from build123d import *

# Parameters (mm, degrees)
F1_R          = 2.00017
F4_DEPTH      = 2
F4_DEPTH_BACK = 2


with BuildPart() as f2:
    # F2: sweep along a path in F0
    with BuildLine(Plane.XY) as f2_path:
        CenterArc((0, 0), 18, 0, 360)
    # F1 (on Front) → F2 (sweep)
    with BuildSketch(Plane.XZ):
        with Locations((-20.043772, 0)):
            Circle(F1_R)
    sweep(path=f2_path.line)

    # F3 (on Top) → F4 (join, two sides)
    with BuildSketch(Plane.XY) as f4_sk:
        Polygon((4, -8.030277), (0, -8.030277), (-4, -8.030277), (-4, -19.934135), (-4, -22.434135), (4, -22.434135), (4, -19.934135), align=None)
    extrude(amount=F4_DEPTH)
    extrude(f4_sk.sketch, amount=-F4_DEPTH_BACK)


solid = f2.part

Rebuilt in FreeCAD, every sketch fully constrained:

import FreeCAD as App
import Part
import Sketcher
Q = App.Units.Quantity


def add_polygon(sketch, points):
    """Adds a closed chain of lines whose ends are joined by coincident constraints."""
    first, n = sketch.GeometryCount, len(points)
    for a, b in zip(points, points[1:] + points[:1]):
        sketch.addGeometry(Part.LineSegment(App.Vector(*a, 0), App.Vector(*b, 0)), False)
    for i in range(n):
        sketch.addConstraint(Sketcher.Constraint("Coincident", first + i, 2, first + (i + 1) % n, 1))

doc = App.newDocument("Part")
body = doc.addObject("PartDesign::Body", "Body")

sketch1 = body.newObject("Sketcher::SketchObject", "Sketch")
sketch1.AttachmentSupport = (doc.getObject("XZ_Plane"), [""])
sketch1.MapMode = "FlatFace"
sketch1.addGeometry(Part.Circle(App.Vector(-20.043772, 0, 0), App.Vector(0, 0, 1), 2.00017), False)
sketch1.addConstraint([
    Sketcher.Constraint("PointOnObject", 0, 3, -1),
    Sketcher.Constraint("Diameter", 0, Q("4.00034 mm")),
    Sketcher.Constraint("DistanceX", 0, 3, -1, 1, Q("20.043772 mm")),
])

sketch2 = body.newObject("Sketcher::SketchObject", "Sketch001")
sketch2.AttachmentSupport = (doc.getObject("XY_Plane"), [""])
sketch2.MapMode = "FlatFace"
sketch2.addGeometry(Part.Circle(App.Vector(0, 0, 0), App.Vector(0, 0, 1), 18), False)
sketch2.addConstraint([
    Sketcher.Constraint("Coincident", 0, 3, -1, 1),
    Sketcher.Constraint("Diameter", 0, Q("36 mm")),
])
doc.recompute()

additivepipe = body.newObject("PartDesign::AdditivePipe", "AdditivePipe")
additivepipe.Profile = sketch1
additivepipe.Spine = (sketch2, ["Edge1"])

sketch3 = body.newObject("Sketcher::SketchObject", "Sketch002")
sketch3.AttachmentSupport = (doc.getObject("XY_Plane"), [""])
sketch3.MapMode = "FlatFace"
add_polygon(sketch3, [(4, -8.030277), (-4, -8.030277), (-4, -22.434135), (4, -22.434135)])
sketch3.addConstraint([
    Sketcher.Constraint("Horizontal", 0),
    Sketcher.Constraint("Vertical", 1),
    Sketcher.Constraint("Horizontal", 2),
    Sketcher.Constraint("Vertical", 3),
    Sketcher.Constraint("DistanceX", 0, 2, 0, 1, Q("8 mm")),
    Sketcher.Constraint("DistanceX", 0, 2, -1, 1, Q("4 mm")),
    Sketcher.Constraint("DistanceY", 1, 2, 1, 1, Q("14.403858 mm")),
    Sketcher.Constraint("DistanceY", 0, 2, -1, 1, Q("8.030277 mm")),
])
pad1 = body.newObject("PartDesign::Pad", "Pad")
pad1.Profile = sketch3
pad1.Type = "TwoLengths"
pad1.Length = 2
pad1.Length2 = 2

doc.recompute()
